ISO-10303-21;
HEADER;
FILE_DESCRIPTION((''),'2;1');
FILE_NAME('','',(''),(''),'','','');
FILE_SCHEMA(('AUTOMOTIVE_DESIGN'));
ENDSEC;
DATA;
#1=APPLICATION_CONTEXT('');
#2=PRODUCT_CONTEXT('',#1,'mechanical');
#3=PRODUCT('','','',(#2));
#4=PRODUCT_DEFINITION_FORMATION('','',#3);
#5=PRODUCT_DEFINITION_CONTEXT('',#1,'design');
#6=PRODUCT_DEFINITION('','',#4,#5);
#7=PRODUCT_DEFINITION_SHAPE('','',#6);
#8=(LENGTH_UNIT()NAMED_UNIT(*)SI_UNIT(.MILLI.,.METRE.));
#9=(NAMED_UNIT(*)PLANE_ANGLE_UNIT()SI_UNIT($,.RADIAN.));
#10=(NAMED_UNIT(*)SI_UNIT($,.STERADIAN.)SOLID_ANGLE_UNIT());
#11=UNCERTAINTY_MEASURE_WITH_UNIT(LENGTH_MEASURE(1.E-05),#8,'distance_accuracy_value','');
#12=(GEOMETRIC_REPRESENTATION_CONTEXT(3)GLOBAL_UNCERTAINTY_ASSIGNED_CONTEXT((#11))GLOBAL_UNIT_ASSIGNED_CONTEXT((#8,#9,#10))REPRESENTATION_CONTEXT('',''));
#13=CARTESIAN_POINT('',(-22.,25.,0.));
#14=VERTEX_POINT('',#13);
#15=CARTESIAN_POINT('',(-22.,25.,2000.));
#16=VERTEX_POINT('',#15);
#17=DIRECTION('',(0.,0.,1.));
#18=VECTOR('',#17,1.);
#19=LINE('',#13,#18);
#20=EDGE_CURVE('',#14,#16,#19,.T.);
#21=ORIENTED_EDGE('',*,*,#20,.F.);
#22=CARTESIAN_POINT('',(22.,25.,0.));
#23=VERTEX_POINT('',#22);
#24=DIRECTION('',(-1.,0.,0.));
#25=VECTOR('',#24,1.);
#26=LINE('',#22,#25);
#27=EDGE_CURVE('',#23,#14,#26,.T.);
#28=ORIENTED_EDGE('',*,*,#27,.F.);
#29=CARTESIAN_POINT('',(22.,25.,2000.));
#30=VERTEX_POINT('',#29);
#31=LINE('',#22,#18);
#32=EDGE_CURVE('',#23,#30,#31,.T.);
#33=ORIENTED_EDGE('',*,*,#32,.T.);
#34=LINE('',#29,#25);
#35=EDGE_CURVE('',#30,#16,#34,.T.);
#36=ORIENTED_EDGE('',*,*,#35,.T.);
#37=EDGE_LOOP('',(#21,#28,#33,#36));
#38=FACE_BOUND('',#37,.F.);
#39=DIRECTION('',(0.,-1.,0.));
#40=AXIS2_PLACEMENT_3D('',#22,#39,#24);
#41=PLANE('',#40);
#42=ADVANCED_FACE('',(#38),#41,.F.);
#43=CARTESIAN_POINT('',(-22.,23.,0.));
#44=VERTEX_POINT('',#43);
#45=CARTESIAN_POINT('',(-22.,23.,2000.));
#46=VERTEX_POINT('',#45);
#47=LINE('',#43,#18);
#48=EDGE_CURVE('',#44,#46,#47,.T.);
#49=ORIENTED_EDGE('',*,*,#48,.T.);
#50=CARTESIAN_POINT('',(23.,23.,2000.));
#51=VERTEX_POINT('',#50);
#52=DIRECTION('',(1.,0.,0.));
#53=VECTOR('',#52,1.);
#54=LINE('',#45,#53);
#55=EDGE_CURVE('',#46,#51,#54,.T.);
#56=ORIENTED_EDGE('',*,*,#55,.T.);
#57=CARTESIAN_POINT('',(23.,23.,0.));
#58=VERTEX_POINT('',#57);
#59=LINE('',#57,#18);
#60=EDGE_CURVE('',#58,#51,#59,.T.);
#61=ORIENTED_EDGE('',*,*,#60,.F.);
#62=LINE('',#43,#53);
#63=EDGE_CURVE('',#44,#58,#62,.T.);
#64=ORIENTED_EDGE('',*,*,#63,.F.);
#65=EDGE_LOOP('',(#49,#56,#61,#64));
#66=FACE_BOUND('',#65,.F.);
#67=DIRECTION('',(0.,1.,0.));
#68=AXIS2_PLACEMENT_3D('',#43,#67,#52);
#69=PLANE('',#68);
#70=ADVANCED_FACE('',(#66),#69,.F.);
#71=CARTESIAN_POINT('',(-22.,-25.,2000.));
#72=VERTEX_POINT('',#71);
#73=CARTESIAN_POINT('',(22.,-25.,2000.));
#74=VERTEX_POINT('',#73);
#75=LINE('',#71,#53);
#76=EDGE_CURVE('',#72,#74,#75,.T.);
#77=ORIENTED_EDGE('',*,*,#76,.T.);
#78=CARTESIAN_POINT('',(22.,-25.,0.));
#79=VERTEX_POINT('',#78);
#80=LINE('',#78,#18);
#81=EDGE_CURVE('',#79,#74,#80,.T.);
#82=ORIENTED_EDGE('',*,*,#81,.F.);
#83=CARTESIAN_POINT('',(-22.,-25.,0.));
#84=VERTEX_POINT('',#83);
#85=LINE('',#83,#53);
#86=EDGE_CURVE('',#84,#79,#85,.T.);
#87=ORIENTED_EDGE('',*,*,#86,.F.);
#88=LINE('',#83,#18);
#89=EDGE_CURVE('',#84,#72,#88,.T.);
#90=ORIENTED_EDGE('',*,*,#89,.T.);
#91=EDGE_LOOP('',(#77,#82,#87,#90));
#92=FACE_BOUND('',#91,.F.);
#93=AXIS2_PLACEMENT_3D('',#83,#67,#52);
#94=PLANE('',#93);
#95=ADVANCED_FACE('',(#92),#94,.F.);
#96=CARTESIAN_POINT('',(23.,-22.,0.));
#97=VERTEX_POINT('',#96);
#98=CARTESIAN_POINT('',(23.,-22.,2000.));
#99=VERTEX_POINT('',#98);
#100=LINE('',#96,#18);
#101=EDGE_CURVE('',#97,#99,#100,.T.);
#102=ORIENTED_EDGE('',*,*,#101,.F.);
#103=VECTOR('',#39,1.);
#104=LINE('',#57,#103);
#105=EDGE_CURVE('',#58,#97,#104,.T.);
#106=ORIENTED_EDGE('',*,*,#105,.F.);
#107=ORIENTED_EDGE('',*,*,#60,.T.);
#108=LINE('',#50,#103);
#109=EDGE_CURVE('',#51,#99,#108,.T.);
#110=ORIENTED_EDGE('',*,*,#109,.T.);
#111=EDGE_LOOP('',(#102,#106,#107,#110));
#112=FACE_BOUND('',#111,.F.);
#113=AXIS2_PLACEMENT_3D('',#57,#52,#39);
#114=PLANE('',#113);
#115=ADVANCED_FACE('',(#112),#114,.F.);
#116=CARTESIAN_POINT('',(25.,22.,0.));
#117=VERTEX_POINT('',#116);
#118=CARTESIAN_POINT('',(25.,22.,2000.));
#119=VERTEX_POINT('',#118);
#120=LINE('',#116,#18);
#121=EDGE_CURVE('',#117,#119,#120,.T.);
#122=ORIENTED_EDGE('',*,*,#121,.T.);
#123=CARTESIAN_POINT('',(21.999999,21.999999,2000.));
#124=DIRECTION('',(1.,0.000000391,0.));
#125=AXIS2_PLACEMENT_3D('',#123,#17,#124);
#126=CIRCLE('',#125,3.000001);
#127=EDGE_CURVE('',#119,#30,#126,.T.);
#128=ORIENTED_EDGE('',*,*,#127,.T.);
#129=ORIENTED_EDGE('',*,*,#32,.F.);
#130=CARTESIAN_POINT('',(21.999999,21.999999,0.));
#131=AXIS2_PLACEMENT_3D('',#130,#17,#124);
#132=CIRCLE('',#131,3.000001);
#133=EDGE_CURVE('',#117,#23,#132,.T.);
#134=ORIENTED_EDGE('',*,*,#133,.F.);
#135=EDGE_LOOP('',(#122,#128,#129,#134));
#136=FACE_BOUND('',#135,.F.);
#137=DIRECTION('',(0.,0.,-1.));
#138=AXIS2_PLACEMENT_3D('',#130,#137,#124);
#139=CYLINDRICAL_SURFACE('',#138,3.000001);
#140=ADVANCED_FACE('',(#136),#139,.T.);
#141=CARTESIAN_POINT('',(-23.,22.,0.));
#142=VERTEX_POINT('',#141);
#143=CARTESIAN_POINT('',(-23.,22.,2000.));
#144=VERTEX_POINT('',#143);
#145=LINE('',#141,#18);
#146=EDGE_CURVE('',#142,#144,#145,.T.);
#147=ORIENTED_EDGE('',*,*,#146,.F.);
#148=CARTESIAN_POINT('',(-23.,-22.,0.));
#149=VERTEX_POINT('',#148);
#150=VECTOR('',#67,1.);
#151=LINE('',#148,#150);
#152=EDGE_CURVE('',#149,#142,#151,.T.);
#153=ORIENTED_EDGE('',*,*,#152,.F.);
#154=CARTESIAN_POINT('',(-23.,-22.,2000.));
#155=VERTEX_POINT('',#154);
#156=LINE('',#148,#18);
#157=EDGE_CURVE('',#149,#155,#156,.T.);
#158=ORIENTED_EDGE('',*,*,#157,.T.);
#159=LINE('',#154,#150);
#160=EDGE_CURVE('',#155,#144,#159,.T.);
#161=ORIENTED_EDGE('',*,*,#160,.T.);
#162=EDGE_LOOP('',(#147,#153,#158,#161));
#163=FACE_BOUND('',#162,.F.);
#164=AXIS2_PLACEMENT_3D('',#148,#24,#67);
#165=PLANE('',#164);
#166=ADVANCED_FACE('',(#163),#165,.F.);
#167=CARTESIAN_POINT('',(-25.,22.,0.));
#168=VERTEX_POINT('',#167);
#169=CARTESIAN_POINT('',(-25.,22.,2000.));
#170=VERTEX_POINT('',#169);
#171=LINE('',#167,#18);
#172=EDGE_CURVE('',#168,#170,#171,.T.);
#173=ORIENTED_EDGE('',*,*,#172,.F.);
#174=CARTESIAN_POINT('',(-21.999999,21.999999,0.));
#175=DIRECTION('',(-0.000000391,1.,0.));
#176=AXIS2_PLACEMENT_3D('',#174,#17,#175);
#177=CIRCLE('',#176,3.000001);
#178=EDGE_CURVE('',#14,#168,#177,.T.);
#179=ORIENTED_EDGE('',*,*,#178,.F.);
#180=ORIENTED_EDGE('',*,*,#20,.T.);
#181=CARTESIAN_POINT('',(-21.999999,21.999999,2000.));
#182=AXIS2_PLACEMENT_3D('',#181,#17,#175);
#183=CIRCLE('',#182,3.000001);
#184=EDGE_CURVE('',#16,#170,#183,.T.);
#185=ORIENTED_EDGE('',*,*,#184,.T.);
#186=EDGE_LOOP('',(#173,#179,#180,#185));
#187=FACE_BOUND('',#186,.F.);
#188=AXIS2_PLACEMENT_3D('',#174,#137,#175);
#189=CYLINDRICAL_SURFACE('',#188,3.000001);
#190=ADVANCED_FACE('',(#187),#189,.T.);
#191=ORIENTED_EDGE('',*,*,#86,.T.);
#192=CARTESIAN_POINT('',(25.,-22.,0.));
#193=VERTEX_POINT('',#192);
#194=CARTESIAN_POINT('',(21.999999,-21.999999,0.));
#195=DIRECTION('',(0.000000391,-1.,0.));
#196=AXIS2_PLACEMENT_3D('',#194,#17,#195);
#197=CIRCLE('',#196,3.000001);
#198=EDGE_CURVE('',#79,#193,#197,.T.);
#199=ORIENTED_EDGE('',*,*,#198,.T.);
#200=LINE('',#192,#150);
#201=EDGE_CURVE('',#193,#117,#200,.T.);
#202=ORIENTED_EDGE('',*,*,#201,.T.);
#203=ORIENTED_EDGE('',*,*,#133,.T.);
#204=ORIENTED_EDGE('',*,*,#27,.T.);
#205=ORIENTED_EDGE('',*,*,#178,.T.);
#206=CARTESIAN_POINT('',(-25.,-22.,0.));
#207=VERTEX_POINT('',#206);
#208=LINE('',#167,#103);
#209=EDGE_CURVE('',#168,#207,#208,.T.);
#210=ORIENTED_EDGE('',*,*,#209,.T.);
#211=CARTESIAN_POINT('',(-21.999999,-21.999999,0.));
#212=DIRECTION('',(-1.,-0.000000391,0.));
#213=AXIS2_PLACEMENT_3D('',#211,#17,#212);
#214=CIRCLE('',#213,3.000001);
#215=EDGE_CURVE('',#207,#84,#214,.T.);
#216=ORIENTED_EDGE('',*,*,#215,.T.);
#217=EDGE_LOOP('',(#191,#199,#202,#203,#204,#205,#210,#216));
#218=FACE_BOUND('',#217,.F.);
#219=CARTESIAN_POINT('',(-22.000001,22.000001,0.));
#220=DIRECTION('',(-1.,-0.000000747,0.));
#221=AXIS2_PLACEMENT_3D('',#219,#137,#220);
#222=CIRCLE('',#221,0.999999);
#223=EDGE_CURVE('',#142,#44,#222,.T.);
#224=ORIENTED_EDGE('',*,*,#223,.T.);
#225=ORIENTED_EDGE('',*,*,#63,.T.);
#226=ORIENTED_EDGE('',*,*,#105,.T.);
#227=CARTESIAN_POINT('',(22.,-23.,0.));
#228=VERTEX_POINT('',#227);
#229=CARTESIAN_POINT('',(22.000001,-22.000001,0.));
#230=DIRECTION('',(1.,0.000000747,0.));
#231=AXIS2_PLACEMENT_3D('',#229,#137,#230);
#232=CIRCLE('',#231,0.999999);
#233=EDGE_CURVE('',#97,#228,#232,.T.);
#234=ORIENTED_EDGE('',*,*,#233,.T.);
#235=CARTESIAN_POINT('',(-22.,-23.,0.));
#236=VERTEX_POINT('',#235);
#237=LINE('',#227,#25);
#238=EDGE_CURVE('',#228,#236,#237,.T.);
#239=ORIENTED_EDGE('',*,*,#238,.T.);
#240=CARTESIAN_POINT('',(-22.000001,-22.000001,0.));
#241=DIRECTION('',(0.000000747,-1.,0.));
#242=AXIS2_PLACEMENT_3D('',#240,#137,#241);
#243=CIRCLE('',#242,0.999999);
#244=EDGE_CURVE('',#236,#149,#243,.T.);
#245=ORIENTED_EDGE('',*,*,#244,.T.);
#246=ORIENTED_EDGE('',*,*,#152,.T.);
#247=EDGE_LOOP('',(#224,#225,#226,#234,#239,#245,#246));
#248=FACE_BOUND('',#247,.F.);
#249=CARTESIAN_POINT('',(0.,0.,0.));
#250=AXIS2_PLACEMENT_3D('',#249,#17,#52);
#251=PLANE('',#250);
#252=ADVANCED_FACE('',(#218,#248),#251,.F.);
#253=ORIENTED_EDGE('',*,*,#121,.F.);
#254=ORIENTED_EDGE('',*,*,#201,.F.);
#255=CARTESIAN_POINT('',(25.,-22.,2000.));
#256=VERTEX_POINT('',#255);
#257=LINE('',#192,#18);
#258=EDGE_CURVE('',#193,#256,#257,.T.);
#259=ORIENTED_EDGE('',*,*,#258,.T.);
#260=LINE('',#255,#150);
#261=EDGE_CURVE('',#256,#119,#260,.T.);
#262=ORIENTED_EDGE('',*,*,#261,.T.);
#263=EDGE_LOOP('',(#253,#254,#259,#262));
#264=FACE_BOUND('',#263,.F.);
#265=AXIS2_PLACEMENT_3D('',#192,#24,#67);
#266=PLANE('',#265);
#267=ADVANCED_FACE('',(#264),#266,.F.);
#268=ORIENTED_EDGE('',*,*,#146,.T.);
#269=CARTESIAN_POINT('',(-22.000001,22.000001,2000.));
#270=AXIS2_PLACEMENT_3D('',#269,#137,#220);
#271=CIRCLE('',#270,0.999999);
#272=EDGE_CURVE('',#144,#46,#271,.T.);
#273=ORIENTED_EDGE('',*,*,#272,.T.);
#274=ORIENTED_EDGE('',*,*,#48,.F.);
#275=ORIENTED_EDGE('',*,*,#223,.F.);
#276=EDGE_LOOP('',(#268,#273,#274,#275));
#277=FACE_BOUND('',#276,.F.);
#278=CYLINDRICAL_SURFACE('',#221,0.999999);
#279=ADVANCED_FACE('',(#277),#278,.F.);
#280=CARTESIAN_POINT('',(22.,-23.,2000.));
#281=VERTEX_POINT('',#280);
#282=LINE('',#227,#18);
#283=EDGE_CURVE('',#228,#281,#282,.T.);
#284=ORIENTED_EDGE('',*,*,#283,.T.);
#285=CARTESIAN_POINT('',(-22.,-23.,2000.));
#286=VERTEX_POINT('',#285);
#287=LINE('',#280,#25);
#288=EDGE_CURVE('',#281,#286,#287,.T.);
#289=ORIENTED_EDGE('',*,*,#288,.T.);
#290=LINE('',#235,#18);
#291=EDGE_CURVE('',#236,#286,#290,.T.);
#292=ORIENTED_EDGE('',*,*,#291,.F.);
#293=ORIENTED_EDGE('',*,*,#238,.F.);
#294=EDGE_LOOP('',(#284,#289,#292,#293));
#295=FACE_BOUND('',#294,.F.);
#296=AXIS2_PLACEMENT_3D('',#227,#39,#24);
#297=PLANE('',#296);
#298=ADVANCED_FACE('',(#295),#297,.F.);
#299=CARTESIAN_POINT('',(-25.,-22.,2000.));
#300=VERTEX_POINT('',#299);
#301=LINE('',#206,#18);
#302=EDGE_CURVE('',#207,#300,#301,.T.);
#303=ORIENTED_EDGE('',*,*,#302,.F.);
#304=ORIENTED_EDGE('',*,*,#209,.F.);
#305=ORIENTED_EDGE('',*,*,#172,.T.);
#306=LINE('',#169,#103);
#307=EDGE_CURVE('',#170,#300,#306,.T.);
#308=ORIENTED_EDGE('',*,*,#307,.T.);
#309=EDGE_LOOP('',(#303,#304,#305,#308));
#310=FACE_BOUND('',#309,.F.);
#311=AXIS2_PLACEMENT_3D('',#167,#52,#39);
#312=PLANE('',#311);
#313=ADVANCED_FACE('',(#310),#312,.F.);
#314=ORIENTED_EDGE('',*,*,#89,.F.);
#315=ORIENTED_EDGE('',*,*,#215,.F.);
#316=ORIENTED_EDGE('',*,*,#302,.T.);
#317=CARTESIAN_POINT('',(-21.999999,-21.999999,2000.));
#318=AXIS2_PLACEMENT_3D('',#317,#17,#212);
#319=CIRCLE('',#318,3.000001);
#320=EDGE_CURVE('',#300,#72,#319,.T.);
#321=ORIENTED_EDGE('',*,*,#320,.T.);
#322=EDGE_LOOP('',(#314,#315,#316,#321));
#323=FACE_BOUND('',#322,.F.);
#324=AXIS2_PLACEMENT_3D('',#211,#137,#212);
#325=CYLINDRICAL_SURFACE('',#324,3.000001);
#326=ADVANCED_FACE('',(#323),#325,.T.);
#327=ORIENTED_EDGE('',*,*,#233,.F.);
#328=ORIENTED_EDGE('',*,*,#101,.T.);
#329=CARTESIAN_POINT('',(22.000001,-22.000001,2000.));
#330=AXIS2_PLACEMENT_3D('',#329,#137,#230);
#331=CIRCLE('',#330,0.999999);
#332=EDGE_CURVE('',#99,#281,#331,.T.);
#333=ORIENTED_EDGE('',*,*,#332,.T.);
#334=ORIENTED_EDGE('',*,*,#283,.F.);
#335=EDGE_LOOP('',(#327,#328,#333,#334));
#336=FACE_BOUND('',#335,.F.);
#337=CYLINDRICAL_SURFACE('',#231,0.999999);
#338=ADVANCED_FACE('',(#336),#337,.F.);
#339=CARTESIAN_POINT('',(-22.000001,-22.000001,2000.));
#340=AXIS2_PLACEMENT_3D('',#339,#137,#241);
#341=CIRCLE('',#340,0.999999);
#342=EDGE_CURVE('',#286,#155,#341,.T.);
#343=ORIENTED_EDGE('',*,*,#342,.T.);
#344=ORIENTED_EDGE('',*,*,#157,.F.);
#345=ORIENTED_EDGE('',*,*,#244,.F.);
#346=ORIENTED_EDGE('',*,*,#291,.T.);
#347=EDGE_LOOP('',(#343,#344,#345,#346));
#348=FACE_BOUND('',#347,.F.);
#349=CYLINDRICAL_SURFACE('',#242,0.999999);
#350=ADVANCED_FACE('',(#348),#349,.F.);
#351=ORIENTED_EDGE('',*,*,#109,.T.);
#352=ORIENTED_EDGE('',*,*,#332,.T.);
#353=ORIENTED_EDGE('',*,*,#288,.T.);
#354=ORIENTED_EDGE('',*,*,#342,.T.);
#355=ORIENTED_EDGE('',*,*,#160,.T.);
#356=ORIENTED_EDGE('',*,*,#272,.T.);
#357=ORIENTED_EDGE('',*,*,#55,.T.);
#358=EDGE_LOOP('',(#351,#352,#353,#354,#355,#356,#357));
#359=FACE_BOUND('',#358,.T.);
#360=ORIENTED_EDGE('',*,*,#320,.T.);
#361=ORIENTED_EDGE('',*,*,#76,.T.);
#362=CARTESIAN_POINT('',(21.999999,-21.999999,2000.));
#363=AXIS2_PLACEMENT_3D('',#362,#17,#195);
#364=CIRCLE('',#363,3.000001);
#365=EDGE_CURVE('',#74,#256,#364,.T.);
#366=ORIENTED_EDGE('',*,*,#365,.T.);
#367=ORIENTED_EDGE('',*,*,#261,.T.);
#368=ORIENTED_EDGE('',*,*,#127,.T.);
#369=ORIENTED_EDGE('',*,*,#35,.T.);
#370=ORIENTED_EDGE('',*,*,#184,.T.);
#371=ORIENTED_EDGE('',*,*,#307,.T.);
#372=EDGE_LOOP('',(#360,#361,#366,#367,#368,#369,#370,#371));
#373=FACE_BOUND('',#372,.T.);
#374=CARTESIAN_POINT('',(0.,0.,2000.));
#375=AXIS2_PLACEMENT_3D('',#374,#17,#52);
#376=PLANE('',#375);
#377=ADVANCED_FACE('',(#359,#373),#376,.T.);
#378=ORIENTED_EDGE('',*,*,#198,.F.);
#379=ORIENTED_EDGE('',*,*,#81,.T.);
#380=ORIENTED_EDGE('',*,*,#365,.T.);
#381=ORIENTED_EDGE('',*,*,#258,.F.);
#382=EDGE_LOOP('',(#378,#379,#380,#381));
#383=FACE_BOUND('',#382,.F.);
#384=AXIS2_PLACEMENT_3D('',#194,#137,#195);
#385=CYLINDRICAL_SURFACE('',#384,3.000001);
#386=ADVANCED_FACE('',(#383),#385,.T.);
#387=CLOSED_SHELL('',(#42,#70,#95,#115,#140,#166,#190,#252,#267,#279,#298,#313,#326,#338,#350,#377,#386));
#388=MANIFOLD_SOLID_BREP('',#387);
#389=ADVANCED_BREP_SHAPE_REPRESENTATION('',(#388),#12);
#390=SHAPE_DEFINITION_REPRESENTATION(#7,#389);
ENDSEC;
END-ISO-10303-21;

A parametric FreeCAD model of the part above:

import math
import FreeCAD as App
import Part
import Sketcher

doc = App.newDocument("Part")
params = doc.addObject("Spreadsheet::Sheet", "Params")
for row, (alias, value) in enumerate([
    ("sketch1_radius", "3.000001 mm"),
    ("sketch1_radius2", "0.999999 mm"),
    ("sketch1_width", "44 mm"),
    ("pad1_length", "2000 mm"),
], start=1):
    params.set(f"A{row}", alias)
    params.set(f"B{row}", "=" + value)
    params.setAlias(f"B{row}", alias)

body = doc.addObject("PartDesign::Body", "Body")

# Sketch on XY plane
sketch1 = body.newObject("Sketcher::SketchObject", "Sketch")
sketch1.AttachmentSupport = (doc.getObject("XY_Plane"), [""])
sketch1.MapMode = "FlatFace"
sketch1.addGeometry([
    Part.ArcOfCircle(Part.Circle(App.Vector(22, 22, 0), App.Vector(0, 0, 1), 3), math.radians(0), math.radians(90)),  # 0
    Part.LineSegment(App.Vector(22, 25, 0), App.Vector(-22, 25, 0)),  # 1
    Part.ArcOfCircle(Part.Circle(App.Vector(-22, 22, 0), App.Vector(0, 0, 1), 3), math.radians(90), math.radians(180)),  # 2
    Part.LineSegment(App.Vector(-25, 22, 0), App.Vector(-25, -22, 0)),  # 3
    Part.ArcOfCircle(Part.Circle(App.Vector(-22, -22, 0), App.Vector(0, 0, 1), 3), math.radians(-180), math.radians(-90)),  # 4
    Part.LineSegment(App.Vector(-22, -25, 0), App.Vector(22, -25, 0)),  # 5
    Part.ArcOfCircle(Part.Circle(App.Vector(22, -22, 0), App.Vector(0, 0, 1), 3), math.radians(-90), math.radians(0)),  # 6
    Part.LineSegment(App.Vector(25, -22, 0), App.Vector(25, 22, 0)),  # 7
    Part.LineSegment(App.Vector(23, 23, 0), App.Vector(23, -22, 0)),  # 8
    Part.ArcOfCircle(Part.Circle(App.Vector(22, -22, 0), App.Vector(0, 0, 1), 1), math.radians(-90), math.radians(0)),  # 9
    Part.LineSegment(App.Vector(22, -23, 0), App.Vector(-22, -23, 0)),  # 10
    Part.ArcOfCircle(Part.Circle(App.Vector(-22, -22, 0), App.Vector(0, 0, 1), 1), math.radians(180), math.radians(270)),  # 11
    Part.LineSegment(App.Vector(-23, -22, 0), App.Vector(-23, 22, 0)),  # 12
    Part.ArcOfCircle(Part.Circle(App.Vector(-22, 22, 0), App.Vector(0, 0, 1), 1), math.radians(90), math.radians(180)),  # 13
    Part.LineSegment(App.Vector(-22, 23, 0), App.Vector(23, 23, 0)),  # 14
], False)
sketch1.addConstraint([
    Sketcher.Constraint("Tangent", 0, 2, 1, 1),
    Sketcher.Constraint("Tangent", 1, 2, 2, 1),
    Sketcher.Constraint("Tangent", 2, 2, 3, 1),
    Sketcher.Constraint("Tangent", 3, 2, 4, 1),
    Sketcher.Constraint("Tangent", 4, 2, 5, 1),
    Sketcher.Constraint("Tangent", 5, 2, 6, 1),
    Sketcher.Constraint("Tangent", 6, 2, 7, 1),
    Sketcher.Constraint("Tangent", 7, 2, 0, 1),
    Sketcher.Constraint("Tangent", 8, 2, 9, 2),
    Sketcher.Constraint("Tangent", 9, 1, 10, 1),
    Sketcher.Constraint("Tangent", 10, 2, 11, 2),
    Sketcher.Constraint("Tangent", 11, 1, 12, 1),
    Sketcher.Constraint("Tangent", 12, 2, 13, 2),
    Sketcher.Constraint("Tangent", 13, 1, 14, 1),
    Sketcher.Constraint("Coincident", 14, 2, 8, 1),
    Sketcher.Constraint("Horizontal", 1),
    Sketcher.Constraint("Vertical", 3),
    Sketcher.Constraint("Horizontal", 5),
    Sketcher.Constraint("Vertical", 7),
    Sketcher.Constraint("Vertical", 8),
    Sketcher.Constraint("Horizontal", 10),
    Sketcher.Constraint("Vertical", 12),
    Sketcher.Constraint("Horizontal", 14),
    Sketcher.Constraint("Coincident", 9, 3, 6, 3),
    Sketcher.Constraint("Coincident", 11, 3, 4, 3),
    Sketcher.Constraint("Coincident", 13, 3, 2, 3),
    Sketcher.Constraint("Equal", 0, 2),
    Sketcher.Constraint("Equal", 2, 4),
    Sketcher.Constraint("Equal", 4, 6),
    Sketcher.Constraint("Symmetric", 0, 3, 4, 3, -1, 1),
    Sketcher.Constraint("Equal", 10, 3),
    Sketcher.Constraint("Radius", 0, 3.000001),
    Sketcher.Constraint("Radius", 9, 0.999999),
    Sketcher.Constraint("DistanceX", 1, 2, 1, 1, 44.0),
])
sketch1.setExpression("Constraints[31]", "Params.sketch1_radius")
sketch1.setExpression("Constraints[32]", "Params.sketch1_radius2")
sketch1.setExpression("Constraints[33]", "Params.sketch1_width")
pad1 = body.newObject("PartDesign::Pad", "Pad")
pad1.Profile = sketch1
pad1.setExpression("Length", "Params.pad1_length")

doc.recompute()
